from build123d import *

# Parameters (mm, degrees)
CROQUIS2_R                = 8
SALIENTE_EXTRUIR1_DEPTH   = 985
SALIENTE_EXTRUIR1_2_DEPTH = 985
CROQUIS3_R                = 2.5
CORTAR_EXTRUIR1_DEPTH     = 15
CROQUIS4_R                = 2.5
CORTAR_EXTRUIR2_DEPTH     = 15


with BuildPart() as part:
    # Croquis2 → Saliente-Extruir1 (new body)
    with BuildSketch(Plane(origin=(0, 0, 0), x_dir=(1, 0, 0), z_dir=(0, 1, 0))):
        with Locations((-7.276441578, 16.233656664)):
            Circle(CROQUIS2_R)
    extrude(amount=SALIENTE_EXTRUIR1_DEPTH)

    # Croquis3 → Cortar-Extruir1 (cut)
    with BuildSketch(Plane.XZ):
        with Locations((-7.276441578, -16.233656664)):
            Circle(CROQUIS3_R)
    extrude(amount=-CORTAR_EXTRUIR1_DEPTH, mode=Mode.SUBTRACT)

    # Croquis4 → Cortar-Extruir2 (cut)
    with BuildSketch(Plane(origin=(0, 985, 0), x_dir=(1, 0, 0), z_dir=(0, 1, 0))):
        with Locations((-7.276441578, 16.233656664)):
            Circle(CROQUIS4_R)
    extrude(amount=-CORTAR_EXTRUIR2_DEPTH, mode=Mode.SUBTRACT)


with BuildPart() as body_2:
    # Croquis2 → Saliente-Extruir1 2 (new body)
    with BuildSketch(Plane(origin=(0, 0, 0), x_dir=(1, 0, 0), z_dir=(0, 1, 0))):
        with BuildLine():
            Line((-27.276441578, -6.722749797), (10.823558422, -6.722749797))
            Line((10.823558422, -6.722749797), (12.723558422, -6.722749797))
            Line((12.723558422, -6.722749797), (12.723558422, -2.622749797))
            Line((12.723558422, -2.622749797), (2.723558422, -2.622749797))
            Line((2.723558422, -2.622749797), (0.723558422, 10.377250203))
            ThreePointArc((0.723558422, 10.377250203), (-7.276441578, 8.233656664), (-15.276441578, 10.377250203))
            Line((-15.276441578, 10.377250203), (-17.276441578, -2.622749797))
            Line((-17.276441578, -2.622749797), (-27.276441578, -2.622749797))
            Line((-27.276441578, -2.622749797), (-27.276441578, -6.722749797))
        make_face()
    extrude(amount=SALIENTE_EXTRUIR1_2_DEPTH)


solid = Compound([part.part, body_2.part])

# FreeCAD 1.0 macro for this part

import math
import FreeCAD as App
import Part
import Sketcher
from FreeCAD import Vector

doc = App.newDocument("Part")
body = doc.addObject("PartDesign::Body", "Body")

sketch1 = body.newObject("Sketcher::SketchObject", "Sketch")
sketch1.AttachmentSupport = (doc.getObject("XZ_Plane"), [""])
sketch1.MapMode = "FlatFace"
sketch1.addGeometry(Part.Circle(Vector(-7, -16, 0), Vector(0, 0, 1), 8), False)
sketch1.addConstraint(Sketcher.Constraint("Diameter", 0, 16.0))
sketch1.addConstraint(Sketcher.Constraint("DistanceX", 0, 3, -1, 1, 7.276442))
sketch1.addConstraint(Sketcher.Constraint("DistanceY", 0, 3, -1, 1, 16.233657))
pad1 = body.newObject("PartDesign::Pad", "Pad")
pad1.Profile = sketch1
pad1.Length = 985
pad1.Reversed = True

sketch2 = body.newObject("Sketcher::SketchObject", "Sketch001")
sketch2.AttachmentSupport = (doc.getObject("XZ_Plane"), [""])
sketch2.MapMode = "FlatFace"
sketch2.addGeometry(Part.Circle(Vector(-7.3, -16.2, 0), Vector(0, 0, 1), 2.5), False)
sketch2.addConstraint(Sketcher.Constraint("Diameter", 0, 5.0))
sketch2.addConstraint(Sketcher.Constraint("DistanceX", 0, 3, -1, 1, 7.276442))
sketch2.addConstraint(Sketcher.Constraint("DistanceY", 0, 3, -1, 1, 16.233657))
pocket1 = body.newObject("PartDesign::Pocket", "Pocket")
pocket1.Profile = sketch2
pocket1.Length = 15

sketch3 = body.newObject("Sketcher::SketchObject", "Sketch002")
sketch3.AttachmentSupport = (doc.getObject("XZ_Plane"), [""])
sketch3.MapMode = "FlatFace"
sketch3.AttachmentOffset = App.Placement(Vector(0, 0, -985), App.Rotation())
sketch3.addGeometry(Part.Circle(Vector(-7.3, -16.2, 0), Vector(0, 0, 1), 2.5), False)
sketch3.addConstraint(Sketcher.Constraint("Diameter", 0, 5.0))
sketch3.addConstraint(Sketcher.Constraint("DistanceX", 0, 3, -1, 1, 7.276442))
sketch3.addConstraint(Sketcher.Constraint("DistanceY", 0, 3, -1, 1, 16.233657))
pocket2 = body.newObject("PartDesign::Pocket", "Pocket001")
pocket2.Profile = sketch3
pocket2.Length = 15
pocket2.Reversed = True
body2 = doc.addObject("PartDesign::Body", "Body001")

sketch4 = body2.newObject("Sketcher::SketchObject", "Sketch003")
sketch4.AttachmentSupport = (doc.getObject("XZ_Plane001"), [""])
sketch4.MapMode = "FlatFace"
sketch4.addGeometry(Part.LineSegment(Vector(-27.3, 6.7, 0), Vector(12.7, 6.7, 0)), False)
sketch4.addGeometry(Part.LineSegment(Vector(12.7, 6.7, 0), Vector(12.7, 2.6, 0)), False)
sketch4.addGeometry(Part.LineSegment(Vector(12.7, 2.6, 0), Vector(2.7, 2.6, 0)), False)
sketch4.addGeometry(Part.LineSegment(Vector(2.7, 2.6, 0), Vector(0.7, -10.4, 0)), False)
sketch4.addGeometry(Part.ArcOfCircle(Part.Circle(Vector(-7.3, -24.2, 0), Vector(0, 0, 1), 16), math.radians(60), math.radians(120)), False)
sketch4.addGeometry(Part.LineSegment(Vector(-15.3, -10.4, 0), Vector(-17.3, 2.6, 0)), False)
sketch4.addGeometry(Part.LineSegment(Vector(-17.3, 2.6, 0), Vector(-27.3, 2.6, 0)), False)
sketch4.addGeometry(Part.LineSegment(Vector(-27.3, 2.6, 0), Vector(-27.3, 6.7, 0)), False)
sketch4.addConstraint(Sketcher.Constraint("Coincident", 0, 2, 1, 1))
sketch4.addConstraint(Sketcher.Constraint("Coincident", 1, 2, 2, 1))
sketch4.addConstraint(Sketcher.Constraint("Coincident", 2, 2, 3, 1))
sketch4.addConstraint(Sketcher.Constraint("Coincident", 3, 2, 4, 1))
sketch4.addConstraint(Sketcher.Constraint("Coincident", 4, 2, 5, 1))
sketch4.addConstraint(Sketcher.Constraint("Coincident", 5, 2, 6, 1))
sketch4.addConstraint(Sketcher.Constraint("Coincident", 6, 2, 7, 1))
sketch4.addConstraint(Sketcher.Constraint("Coincident", 7, 2, 0, 1))
sketch4.addConstraint(Sketcher.Constraint("Horizontal", 0))
sketch4.addConstraint(Sketcher.Constraint("Vertical", 1))
sketch4.addConstraint(Sketcher.Constraint("Horizontal", 2))
sketch4.addConstraint(Sketcher.Constraint("Horizontal", 6))
sketch4.addConstraint(Sketcher.Constraint("Vertical", 7))
sketch4.addConstraint(Sketcher.Constraint("Horizontal", 3, 2, 4, 2))
sketch4.addConstraint(Sketcher.Constraint("Horizontal", 2, 2, 5, 2))
sketch4.addConstraint(Sketcher.Constraint("Equal", 2, 6))
sketch4.addConstraint(Sketcher.Constraint("Equal", 3, 5))
sketch4.addConstraint(Sketcher.Constraint("Radius", 4, 16.0))
sketch4.addConstraint(Sketcher.Constraint("DistanceX", 0, 1, 0, 2, 40.0))
sketch4.addConstraint(Sketcher.Constraint("DistanceX", 2, 2, 2, 1, 10.0))
sketch4.addConstraint(Sketcher.Constraint("DistanceY", 1, 2, 1, 1, 4.1))
sketch4.addConstraint(Sketcher.Constraint("DistanceX", 3, 2, 2, 2, 2.0))
sketch4.addConstraint(Sketcher.Constraint("DistanceY", 3, 2, 2, 2, 13.0))
sketch4.addConstraint(Sketcher.Constraint("DistanceX", 4, 3, -1, 1, 7.276442))
sketch4.addConstraint(Sketcher.Constraint("DistanceY", -1, 1, 0, 2, 6.72275))
pad2 = body2.newObject("PartDesign::Pad", "Pad001")
pad2.Profile = sketch4
pad2.Length = 985
pad2.Reversed = True

doc.recompute()
